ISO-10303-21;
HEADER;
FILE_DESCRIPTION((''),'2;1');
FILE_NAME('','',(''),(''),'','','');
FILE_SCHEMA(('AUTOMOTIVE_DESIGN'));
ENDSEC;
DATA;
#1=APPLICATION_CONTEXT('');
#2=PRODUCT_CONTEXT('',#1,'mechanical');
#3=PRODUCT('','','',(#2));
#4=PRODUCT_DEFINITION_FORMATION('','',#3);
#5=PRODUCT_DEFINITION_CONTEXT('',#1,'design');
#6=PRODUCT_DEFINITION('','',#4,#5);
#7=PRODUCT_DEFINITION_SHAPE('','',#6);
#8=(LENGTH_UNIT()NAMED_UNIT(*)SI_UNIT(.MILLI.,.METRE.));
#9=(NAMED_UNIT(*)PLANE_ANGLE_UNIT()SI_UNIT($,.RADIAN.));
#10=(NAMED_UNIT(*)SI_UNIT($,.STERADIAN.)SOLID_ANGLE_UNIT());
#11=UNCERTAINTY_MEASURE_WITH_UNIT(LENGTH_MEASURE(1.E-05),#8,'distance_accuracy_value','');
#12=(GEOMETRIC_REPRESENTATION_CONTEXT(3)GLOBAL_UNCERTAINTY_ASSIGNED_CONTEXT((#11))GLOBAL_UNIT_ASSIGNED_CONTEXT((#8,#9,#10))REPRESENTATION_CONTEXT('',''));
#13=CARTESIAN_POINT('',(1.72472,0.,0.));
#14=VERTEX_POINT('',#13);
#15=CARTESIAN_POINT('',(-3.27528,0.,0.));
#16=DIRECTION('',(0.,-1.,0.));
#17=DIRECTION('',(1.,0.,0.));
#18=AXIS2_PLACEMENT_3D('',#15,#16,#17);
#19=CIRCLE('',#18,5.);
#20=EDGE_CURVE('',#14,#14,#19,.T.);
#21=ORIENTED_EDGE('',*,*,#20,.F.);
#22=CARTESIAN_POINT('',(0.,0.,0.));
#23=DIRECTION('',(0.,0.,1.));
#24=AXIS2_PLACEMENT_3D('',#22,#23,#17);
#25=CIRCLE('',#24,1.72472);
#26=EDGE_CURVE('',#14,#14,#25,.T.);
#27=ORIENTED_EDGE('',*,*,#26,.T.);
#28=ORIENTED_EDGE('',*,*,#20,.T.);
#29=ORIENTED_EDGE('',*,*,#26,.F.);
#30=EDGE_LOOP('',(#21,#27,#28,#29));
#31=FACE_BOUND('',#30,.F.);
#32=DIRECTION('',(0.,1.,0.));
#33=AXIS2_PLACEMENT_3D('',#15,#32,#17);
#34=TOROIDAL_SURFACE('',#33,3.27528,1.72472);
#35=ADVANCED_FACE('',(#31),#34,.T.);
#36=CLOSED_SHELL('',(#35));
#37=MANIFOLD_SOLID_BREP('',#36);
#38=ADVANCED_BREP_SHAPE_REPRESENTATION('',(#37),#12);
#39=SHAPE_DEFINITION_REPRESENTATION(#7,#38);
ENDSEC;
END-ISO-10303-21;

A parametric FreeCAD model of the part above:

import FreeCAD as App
import Part
import Sketcher
from FreeCAD import Vector
Q = App.Units.Quantity

doc = App.newDocument("Part")
body = doc.addObject("PartDesign::Body", "Body")

sketch1 = body.newObject("Sketcher::SketchObject", "Sketch")
sketch1.AttachmentSupport = (doc.getObject("XY_Plane"), [""])
sketch1.MapMode = "FlatFace"
sketch1.addGeometry(Part.Circle(Vector(0, 0, 0), Vector(0, 0, 1), 1.7), False)
sketch1.addGeometry(Part.LineSegment(Vector(-3.3, 0, 0), Vector(-3.3, -10, 0)), True)
sketch1.addConstraint([
    Sketcher.Constraint("Vertical", 1),
    Sketcher.Constraint("Coincident", 0, 3, -1, 1),
    Sketcher.Constraint("PointOnObject", 1, 1, -1),
    Sketcher.Constraint("DistanceY", 1, 2, 1, 1, Q("10 mm")),
    Sketcher.Constraint("Diameter", 0, Q("3.44944 mm")),
    Sketcher.Constraint("DistanceX", 1, 1, -1, 1, Q("3.27528 mm")),
])
revolution = body.newObject("PartDesign::Revolution", "Revolution")
revolution.Profile = sketch1
revolution.ReferenceAxis = (sketch1, ["Axis0"])
revolution.Angle = 360

doc.recompute()
